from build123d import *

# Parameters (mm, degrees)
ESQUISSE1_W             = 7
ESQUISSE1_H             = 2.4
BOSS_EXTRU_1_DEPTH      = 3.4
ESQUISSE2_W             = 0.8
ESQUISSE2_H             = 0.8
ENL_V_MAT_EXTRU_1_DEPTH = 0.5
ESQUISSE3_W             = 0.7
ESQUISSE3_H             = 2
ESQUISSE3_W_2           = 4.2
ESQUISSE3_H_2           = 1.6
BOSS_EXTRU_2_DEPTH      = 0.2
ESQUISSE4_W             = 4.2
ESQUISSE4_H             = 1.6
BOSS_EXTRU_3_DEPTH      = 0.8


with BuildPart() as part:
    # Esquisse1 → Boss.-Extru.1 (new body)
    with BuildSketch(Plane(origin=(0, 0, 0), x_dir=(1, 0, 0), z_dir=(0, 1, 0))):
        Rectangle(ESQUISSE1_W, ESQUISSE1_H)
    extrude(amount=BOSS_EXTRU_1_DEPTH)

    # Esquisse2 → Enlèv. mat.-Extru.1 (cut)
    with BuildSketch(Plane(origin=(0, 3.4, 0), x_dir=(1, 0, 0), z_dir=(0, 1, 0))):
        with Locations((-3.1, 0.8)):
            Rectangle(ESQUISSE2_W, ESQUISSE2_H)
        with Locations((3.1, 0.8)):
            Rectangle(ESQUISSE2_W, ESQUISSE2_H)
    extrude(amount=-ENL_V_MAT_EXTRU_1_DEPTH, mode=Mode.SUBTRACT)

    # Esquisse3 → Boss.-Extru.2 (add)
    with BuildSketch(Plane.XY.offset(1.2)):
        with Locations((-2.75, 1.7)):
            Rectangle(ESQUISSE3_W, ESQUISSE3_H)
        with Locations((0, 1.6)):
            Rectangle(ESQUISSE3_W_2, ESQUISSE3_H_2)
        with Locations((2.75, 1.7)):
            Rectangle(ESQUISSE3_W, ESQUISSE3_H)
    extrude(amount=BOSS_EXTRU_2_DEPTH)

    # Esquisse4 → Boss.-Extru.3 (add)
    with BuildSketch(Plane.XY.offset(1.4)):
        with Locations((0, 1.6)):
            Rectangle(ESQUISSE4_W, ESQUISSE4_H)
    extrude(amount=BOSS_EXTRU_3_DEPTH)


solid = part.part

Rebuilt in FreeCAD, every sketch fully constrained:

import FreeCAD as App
import Part
import Sketcher

doc = App.newDocument("Part")
body = doc.addObject("PartDesign::Body", "Body")

# Sketch on XZ plane
sketch1 = body.newObject("Sketcher::SketchObject", "Sketch")
sketch1.AttachmentSupport = (doc.getObject("XZ_Plane"), [""])
sketch1.MapMode = "FlatFace"
sketch1.addGeometry([
    Part.LineSegment(App.Vector(-3.5, -1.2, 0), App.Vector(-3.5, 1.2, 0)),
    Part.LineSegment(App.Vector(-3.5, 1.2, 0), App.Vector(3.5, 1.2, 0)),
    Part.LineSegment(App.Vector(3.5, 1.2, 0), App.Vector(3.5, -1.2, 0)),
    Part.LineSegment(App.Vector(3.5, -1.2, 0), App.Vector(-3.5, -1.2, 0)),
], False)
sketch1.addConstraint([
    Sketcher.Constraint("Coincident", 0, 2, 1, 1),
    Sketcher.Constraint("Coincident", 1, 2, 2, 1),
    Sketcher.Constraint("Coincident", 2, 2, 3, 1),
    Sketcher.Constraint("Coincident", 3, 2, 0, 1),
    Sketcher.Constraint("Vertical", 0),
    Sketcher.Constraint("Horizontal", 1),
    Sketcher.Constraint("Vertical", 2),
    Sketcher.Constraint("Horizontal", 3),
    Sketcher.Constraint("Symmetric", 0, 2, 2, 2, -1, 1),
    Sketcher.Constraint("DistanceX", 1, 1, 1, 2, 7.0),
    Sketcher.Constraint("DistanceY", 0, 1, 0, 2, 2.4),
])
pad1 = body.newObject("PartDesign::Pad", "Pad")
pad1.Profile = sketch1
pad1.Length = 3.4
pad1.Reversed = True

# Sketch on XZ plane
sketch2 = body.newObject("Sketcher::SketchObject", "Sketch001")
sketch2.AttachmentSupport = (doc.getObject("XZ_Plane"), [""])
sketch2.MapMode = "FlatFace"
sketch2.AttachmentOffset = App.Placement(App.Vector(0, 0, -3.4), App.Rotation())
sketch2.addGeometry([
    Part.LineSegment(App.Vector(-3.5, -1.2, 0), App.Vector(-3.5, -0.4, 0)),  # 0
    Part.LineSegment(App.Vector(-3.5, -0.4, 0), App.Vector(-2.7, -0.4, 0)),  # 1
    Part.LineSegment(App.Vector(-2.7, -0.4, 0), App.Vector(-2.7, -1.2, 0)),  # 2
    Part.LineSegment(App.Vector(-2.7, -1.2, 0), App.Vector(-3.5, -1.2, 0)),  # 3
    Part.LineSegment(App.Vector(2.7, -1.2, 0), App.Vector(2.7, -0.4, 0)),  # 4
    Part.LineSegment(App.Vector(2.7, -0.4, 0), App.Vector(3.5, -0.4, 0)),  # 5
    Part.LineSegment(App.Vector(3.5, -0.4, 0), App.Vector(3.5, -1.2, 0)),  # 6
    Part.LineSegment(App.Vector(3.5, -1.2, 0), App.Vector(2.7, -1.2, 0)),  # 7
], False)
sketch2.addConstraint([
    Sketcher.Constraint("Coincident", 0, 2, 1, 1),
    Sketcher.Constraint("Coincident", 1, 2, 2, 1),
    Sketcher.Constraint("Coincident", 2, 2, 3, 1),
    Sketcher.Constraint("Coincident", 3, 2, 0, 1),
    Sketcher.Constraint("Coincident", 4, 2, 5, 1),
    Sketcher.Constraint("Coincident", 5, 2, 6, 1),
    Sketcher.Constraint("Coincident", 6, 2, 7, 1),
    Sketcher.Constraint("Coincident", 7, 2, 4, 1),
    Sketcher.Constraint("Vertical", 0),
    Sketcher.Constraint("Horizontal", 1),
    Sketcher.Constraint("Vertical", 2),
    Sketcher.Constraint("Horizontal", 3),
    Sketcher.Constraint("Vertical", 4),
    Sketcher.Constraint("Horizontal", 5),
    Sketcher.Constraint("Vertical", 6),
    Sketcher.Constraint("Horizontal", 7),
    Sketcher.Constraint("Symmetric", 1, 2, 4, 2, -2),
    Sketcher.Constraint("Symmetric", 3, 2, 6, 2, -2),
    Sketcher.Constraint("Equal", 7, 0),
    Sketcher.Constraint("DistanceX", 1, 1, 1, 2, 0.8),
    Sketcher.Constraint("DistanceX", 0, 2, 5, 2, 7.0),
    Sketcher.Constraint("DistanceY", 0, 2, -1, 1, 0.4),
])
pocket1 = body.newObject("PartDesign::Pocket", "Pocket")
pocket1.Profile = sketch2
pocket1.Length = 0.5
pocket1.Reversed = True

# Sketch on XY plane
sketch3 = body.newObject("Sketcher::SketchObject", "Sketch002")
sketch3.AttachmentSupport = (doc.getObject("XY_Plane"), [""])
sketch3.MapMode = "FlatFace"
sketch3.AttachmentOffset = App.Placement(App.Vector(0, 0, 1.2), App.Rotation())
sketch3.addGeometry([
    Part.LineSegment(App.Vector(-3.1, 2.7, 0), App.Vector(-3.1, 0.7, 0)),  # 0
    Part.LineSegment(App.Vector(-3.1, 0.7, 0), App.Vector(-2.4, 0.7, 0)),  # 1
    Part.LineSegment(App.Vector(-2.4, 0.7, 0), App.Vector(-2.4, 2.7, 0)),  # 2
    Part.LineSegment(App.Vector(-2.4, 2.7, 0), App.Vector(-3.1, 2.7, 0)),  # 3
    Part.LineSegment(App.Vector(-2.1, 2.4, 0), App.Vector(-2.1, 0.8, 0)),  # 4
    Part.LineSegment(App.Vector(-2.1, 0.8, 0), App.Vector(2.1, 0.8, 0)),  # 5
    Part.LineSegment(App.Vector(2.1, 0.8, 0), App.Vector(2.1, 2.4, 0)),  # 6
    Part.LineSegment(App.Vector(2.1, 2.4, 0), App.Vector(-2.1, 2.4, 0)),  # 7
    Part.LineSegment(App.Vector(2.4, 2.7, 0), App.Vector(2.4, 0.7, 0)),  # 8
    Part.LineSegment(App.Vector(2.4, 0.7, 0), App.Vector(3.1, 0.7, 0)),  # 9
    Part.LineSegment(App.Vector(3.1, 0.7, 0), App.Vector(3.1, 2.7, 0)),  # 10
    Part.LineSegment(App.Vector(3.1, 2.7, 0), App.Vector(2.4, 2.7, 0)),  # 11
], False)
sketch3.addConstraint([
    Sketcher.Constraint("Coincident", 0, 2, 1, 1),
    Sketcher.Constraint("Coincident", 1, 2, 2, 1),
    Sketcher.Constraint("Coincident", 2, 2, 3, 1),
    Sketcher.Constraint("Coincident", 3, 2, 0, 1),
    Sketcher.Constraint("Coincident", 4, 2, 5, 1),
    Sketcher.Constraint("Coincident", 5, 2, 6, 1),
    Sketcher.Constraint("Coincident", 6, 2, 7, 1),
    Sketcher.Constraint("Coincident", 7, 2, 4, 1),
    Sketcher.Constraint("Coincident", 8, 2, 9, 1),
    Sketcher.Constraint("Coincident", 9, 2, 10, 1),
    Sketcher.Constraint("Coincident", 10, 2, 11, 1),
    Sketcher.Constraint("Coincident", 11, 2, 8, 1),
    Sketcher.Constraint("Vertical", 0),
    Sketcher.Constraint("Horizontal", 1),
    Sketcher.Constraint("Vertical", 2),
    Sketcher.Constraint("Horizontal", 3),
    Sketcher.Constraint("Vertical", 4),
    Sketcher.Constraint("Horizontal", 5),
    Sketcher.Constraint("Vertical", 6),
    Sketcher.Constraint("Horizontal", 7),
    Sketcher.Constraint("Vertical", 8),
    Sketcher.Constraint("Horizontal", 9),
    Sketcher.Constraint("Vertical", 10),
    Sketcher.Constraint("Horizontal", 11),
    Sketcher.Constraint("Symmetric", 1, 2, 8, 2, -2),
    Sketcher.Constraint("Symmetric", 3, 2, 10, 2, -2),
    Sketcher.Constraint("DistanceY", 0, 2, 0, 1, 2.0),
    Sketcher.Constraint("DistanceX", 1, 1, 1, 2, 0.7),
    Sketcher.Constraint("DistanceX", 5, 1, 5, 2, 4.2),
    Sketcher.Constraint("DistanceY", 4, 2, 4, 1, 1.6),
    Sketcher.Constraint("DistanceX", 0, 2, 4, 2, 1.0),
    Sketcher.Constraint("DistanceX", 5, 2, 9, 2, 1.0),
    Sketcher.Constraint("DistanceY", -1, 1, 0, 2, 0.7),
    Sketcher.Constraint("DistanceY", -1, 1, 4, 2, 0.8),
])
pad2 = body.newObject("PartDesign::Pad", "Pad001")
pad2.Profile = sketch3
pad2.Length = 0.2

# Sketch on XY plane
sketch4 = body.newObject("Sketcher::SketchObject", "Sketch003")
sketch4.AttachmentSupport = (doc.getObject("XY_Plane"), [""])
sketch4.MapMode = "FlatFace"
sketch4.AttachmentOffset = App.Placement(App.Vector(0, 0, 1.4), App.Rotation())
sketch4.addGeometry([
    Part.LineSegment(App.Vector(-2.1, 2.4, 0), App.Vector(-2.1, 0.8, 0)),
    Part.LineSegment(App.Vector(-2.1, 0.8, 0), App.Vector(2.1, 0.8, 0)),
    Part.LineSegment(App.Vector(2.1, 0.8, 0), App.Vector(2.1, 2.4, 0)),
    Part.LineSegment(App.Vector(2.1, 2.4, 0), App.Vector(-2.1, 2.4, 0)),
], False)
sketch4.addConstraint([
    Sketcher.Constraint("Coincident", 0, 2, 1, 1),
    Sketcher.Constraint("Coincident", 1, 2, 2, 1),
    Sketcher.Constraint("Coincident", 2, 2, 3, 1),
    Sketcher.Constraint("Coincident", 3, 2, 0, 1),
    Sketcher.Constraint("Vertical", 0),
    Sketcher.Constraint("Horizontal", 1),
    Sketcher.Constraint("Vertical", 2),
    Sketcher.Constraint("Horizontal", 3),
    Sketcher.Constraint("DistanceX", 1, 1, 1, 2, 4.2),
    Sketcher.Constraint("DistanceY", 0, 2, 0, 1, 1.6),
    Sketcher.Constraint("DistanceX", 0, 2, -1, 1, 2.1),
    Sketcher.Constraint("DistanceY", -1, 1, 0, 2, 0.8),
])
pad3 = body.newObject("PartDesign::Pad", "Pad002")
pad3.Profile = sketch4
pad3.Length = 0.8

doc.recompute()
